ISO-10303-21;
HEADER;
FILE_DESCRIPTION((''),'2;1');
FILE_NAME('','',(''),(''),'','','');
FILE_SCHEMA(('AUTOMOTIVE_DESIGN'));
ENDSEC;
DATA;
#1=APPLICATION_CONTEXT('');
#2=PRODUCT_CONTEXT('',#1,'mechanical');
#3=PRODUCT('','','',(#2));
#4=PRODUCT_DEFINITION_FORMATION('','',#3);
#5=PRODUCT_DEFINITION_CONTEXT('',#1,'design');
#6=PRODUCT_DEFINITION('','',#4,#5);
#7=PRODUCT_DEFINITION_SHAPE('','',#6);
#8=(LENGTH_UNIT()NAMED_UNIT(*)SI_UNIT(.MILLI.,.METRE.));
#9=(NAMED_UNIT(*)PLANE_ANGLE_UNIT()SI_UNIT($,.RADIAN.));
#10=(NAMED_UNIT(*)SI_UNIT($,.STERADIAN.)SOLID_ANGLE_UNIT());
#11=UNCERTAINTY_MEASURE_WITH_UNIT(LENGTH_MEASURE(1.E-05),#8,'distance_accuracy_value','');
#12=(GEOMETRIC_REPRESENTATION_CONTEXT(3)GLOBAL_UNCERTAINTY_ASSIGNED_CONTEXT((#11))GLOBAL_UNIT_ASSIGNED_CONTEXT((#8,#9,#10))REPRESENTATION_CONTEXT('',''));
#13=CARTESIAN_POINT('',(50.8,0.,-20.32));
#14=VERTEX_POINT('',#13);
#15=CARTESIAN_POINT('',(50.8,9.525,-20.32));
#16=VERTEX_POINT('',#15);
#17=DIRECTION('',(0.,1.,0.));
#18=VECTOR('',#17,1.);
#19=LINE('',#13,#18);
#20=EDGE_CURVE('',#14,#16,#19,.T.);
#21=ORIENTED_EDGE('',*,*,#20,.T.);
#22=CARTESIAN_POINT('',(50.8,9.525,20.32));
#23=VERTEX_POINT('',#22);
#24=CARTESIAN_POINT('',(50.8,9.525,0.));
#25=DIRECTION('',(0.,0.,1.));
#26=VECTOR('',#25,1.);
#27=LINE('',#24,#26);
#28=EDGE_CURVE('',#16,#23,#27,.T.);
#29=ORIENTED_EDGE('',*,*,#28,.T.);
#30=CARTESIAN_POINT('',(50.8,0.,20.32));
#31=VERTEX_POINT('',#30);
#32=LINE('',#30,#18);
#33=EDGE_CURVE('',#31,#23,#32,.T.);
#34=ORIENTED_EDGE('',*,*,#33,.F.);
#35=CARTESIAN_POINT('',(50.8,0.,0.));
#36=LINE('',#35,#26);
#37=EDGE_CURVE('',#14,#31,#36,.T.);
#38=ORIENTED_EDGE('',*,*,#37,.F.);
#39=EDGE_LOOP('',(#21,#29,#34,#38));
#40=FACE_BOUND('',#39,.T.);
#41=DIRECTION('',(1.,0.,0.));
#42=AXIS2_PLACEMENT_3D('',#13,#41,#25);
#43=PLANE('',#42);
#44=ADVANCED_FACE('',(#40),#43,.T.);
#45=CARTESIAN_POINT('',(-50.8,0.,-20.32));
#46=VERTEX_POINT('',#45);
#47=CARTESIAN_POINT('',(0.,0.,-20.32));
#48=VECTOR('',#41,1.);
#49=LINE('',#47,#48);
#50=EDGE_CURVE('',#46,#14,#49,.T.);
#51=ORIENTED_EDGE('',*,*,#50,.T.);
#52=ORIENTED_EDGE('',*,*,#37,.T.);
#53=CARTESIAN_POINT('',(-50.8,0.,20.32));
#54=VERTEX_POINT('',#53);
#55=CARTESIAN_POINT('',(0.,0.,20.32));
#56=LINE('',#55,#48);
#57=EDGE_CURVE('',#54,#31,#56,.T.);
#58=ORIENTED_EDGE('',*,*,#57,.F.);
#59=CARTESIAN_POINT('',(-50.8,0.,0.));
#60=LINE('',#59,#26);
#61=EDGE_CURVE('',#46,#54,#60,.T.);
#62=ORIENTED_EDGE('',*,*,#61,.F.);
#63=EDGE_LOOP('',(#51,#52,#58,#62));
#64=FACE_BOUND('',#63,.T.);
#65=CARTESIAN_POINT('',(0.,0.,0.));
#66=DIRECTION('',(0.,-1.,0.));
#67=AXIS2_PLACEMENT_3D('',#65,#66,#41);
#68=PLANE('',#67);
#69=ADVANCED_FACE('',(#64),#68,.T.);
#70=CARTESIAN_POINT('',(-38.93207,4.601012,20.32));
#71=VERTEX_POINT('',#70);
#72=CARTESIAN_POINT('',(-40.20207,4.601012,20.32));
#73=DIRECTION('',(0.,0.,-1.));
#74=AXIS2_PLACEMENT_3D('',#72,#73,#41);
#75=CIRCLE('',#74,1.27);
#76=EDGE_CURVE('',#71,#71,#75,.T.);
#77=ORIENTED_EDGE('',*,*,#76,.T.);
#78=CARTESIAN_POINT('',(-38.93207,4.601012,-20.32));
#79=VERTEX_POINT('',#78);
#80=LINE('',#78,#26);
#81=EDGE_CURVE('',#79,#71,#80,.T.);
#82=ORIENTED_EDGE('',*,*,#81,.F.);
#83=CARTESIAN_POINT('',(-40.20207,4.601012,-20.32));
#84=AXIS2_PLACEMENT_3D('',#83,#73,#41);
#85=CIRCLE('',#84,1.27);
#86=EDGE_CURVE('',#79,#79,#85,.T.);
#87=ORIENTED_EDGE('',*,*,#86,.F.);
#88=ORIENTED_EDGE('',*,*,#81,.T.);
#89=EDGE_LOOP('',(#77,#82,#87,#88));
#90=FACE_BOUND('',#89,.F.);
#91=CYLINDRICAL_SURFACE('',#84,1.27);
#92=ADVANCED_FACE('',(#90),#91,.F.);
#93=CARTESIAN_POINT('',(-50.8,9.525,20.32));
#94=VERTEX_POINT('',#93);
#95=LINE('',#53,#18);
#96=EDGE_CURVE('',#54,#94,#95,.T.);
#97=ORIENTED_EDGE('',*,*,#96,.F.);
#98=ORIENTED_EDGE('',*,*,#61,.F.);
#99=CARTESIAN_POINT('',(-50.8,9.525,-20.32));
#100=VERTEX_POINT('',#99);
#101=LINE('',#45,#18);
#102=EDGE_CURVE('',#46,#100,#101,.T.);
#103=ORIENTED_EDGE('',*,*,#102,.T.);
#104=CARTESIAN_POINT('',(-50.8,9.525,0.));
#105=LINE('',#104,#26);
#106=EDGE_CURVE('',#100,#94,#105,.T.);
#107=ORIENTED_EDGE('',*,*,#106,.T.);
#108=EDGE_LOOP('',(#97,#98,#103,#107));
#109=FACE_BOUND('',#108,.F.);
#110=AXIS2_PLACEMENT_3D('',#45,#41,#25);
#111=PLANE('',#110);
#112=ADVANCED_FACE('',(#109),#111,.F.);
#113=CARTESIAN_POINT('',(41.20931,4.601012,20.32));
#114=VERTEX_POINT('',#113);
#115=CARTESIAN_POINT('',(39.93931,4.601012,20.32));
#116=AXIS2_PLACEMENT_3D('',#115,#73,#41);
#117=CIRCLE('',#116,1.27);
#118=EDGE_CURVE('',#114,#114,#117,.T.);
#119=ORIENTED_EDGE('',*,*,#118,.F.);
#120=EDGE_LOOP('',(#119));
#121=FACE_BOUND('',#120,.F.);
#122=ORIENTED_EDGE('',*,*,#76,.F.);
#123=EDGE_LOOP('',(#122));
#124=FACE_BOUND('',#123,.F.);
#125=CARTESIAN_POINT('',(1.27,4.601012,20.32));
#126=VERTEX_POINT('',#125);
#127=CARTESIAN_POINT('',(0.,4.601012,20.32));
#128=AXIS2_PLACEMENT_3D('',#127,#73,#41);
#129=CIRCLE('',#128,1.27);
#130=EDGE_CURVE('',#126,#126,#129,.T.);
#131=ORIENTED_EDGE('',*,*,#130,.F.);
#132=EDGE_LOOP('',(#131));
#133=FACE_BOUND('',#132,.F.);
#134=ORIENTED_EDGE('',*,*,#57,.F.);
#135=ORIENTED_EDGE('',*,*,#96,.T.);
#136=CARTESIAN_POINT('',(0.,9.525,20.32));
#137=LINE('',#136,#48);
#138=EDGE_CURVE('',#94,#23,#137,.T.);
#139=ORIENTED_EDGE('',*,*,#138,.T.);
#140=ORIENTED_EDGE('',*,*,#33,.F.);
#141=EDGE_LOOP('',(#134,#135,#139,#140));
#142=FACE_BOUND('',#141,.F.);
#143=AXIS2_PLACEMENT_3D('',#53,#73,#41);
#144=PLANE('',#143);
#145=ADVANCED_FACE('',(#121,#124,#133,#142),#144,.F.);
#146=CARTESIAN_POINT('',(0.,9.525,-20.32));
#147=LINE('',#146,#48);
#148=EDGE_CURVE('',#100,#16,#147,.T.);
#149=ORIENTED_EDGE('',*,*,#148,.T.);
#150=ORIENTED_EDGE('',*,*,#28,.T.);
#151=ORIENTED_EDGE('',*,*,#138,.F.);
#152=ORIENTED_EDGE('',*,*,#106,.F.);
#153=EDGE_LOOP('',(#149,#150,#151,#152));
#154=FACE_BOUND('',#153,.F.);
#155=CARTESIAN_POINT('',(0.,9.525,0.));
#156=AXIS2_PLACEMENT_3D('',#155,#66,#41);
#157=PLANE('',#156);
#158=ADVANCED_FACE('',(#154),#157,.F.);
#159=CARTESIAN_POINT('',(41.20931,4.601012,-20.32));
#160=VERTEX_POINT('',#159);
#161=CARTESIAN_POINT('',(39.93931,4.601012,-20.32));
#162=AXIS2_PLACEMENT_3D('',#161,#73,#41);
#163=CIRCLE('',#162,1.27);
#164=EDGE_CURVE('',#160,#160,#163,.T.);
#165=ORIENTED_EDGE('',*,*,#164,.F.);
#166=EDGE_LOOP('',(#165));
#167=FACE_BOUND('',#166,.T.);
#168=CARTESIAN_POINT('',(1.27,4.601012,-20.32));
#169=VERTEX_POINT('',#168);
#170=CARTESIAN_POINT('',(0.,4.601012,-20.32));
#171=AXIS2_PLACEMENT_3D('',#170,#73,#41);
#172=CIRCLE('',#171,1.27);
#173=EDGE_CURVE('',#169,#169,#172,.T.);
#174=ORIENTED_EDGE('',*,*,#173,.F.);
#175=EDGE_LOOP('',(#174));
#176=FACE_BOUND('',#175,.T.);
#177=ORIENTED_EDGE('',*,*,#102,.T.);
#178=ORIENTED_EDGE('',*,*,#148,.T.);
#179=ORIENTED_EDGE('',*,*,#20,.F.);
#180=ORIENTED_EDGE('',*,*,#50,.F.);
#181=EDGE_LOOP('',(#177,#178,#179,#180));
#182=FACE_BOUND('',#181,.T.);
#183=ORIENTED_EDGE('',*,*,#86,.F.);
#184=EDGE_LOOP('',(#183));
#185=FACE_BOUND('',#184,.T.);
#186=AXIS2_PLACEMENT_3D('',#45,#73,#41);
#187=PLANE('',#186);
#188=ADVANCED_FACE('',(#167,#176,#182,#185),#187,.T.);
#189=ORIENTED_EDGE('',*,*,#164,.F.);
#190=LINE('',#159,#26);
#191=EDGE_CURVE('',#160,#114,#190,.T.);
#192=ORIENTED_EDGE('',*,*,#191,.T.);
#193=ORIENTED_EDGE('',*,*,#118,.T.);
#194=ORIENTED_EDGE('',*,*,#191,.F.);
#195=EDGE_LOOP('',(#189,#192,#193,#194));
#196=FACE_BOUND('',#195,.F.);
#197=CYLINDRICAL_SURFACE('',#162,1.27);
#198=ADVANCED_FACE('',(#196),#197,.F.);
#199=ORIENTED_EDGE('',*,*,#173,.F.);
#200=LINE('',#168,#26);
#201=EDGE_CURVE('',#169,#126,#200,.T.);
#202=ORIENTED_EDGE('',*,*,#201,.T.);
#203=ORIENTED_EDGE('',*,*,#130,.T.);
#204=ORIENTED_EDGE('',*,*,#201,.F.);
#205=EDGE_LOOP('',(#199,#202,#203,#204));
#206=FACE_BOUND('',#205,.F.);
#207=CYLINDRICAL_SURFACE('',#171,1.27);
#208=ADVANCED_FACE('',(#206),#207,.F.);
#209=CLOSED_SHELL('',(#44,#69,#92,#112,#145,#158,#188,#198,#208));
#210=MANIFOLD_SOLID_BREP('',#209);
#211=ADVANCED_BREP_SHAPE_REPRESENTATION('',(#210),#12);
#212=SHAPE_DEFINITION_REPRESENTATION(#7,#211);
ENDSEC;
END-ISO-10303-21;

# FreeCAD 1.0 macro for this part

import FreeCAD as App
import Part
import Sketcher
Q = App.Units.Quantity

doc = App.newDocument("Part")
body = doc.addObject("PartDesign::Body", "Body")

# Sketch on XZ plane
sketch1 = body.newObject("Sketcher::SketchObject", "Sketch")
sketch1.AttachmentSupport = (doc.getObject("XZ_Plane"), [""])
sketch1.MapMode = "FlatFace"
sketch1.addGeometry([
    Part.LineSegment(App.Vector(-51, 20, 0), App.Vector(-51, -20, 0)),
    Part.LineSegment(App.Vector(-51, -20, 0), App.Vector(51, -20, 0)),
    Part.LineSegment(App.Vector(51, -20, 0), App.Vector(51, 20, 0)),
    Part.LineSegment(App.Vector(51, 20, 0), App.Vector(-51, 20, 0)),
], False)
sketch1.addConstraint([
    Sketcher.Constraint("Coincident", 0, 2, 1, 1),
    Sketcher.Constraint("Coincident", 1, 2, 2, 1),
    Sketcher.Constraint("Coincident", 2, 2, 3, 1),
    Sketcher.Constraint("Coincident", 3, 2, 0, 1),
    Sketcher.Constraint("Vertical", 0),
    Sketcher.Constraint("Horizontal", 1),
    Sketcher.Constraint("Vertical", 2),
    Sketcher.Constraint("Horizontal", 3),
    Sketcher.Constraint("Symmetric", 0, 2, 2, 2, -1, 1),
    Sketcher.Constraint("DistanceX", 1, 1, 1, 2, Q("4 in")),
    Sketcher.Constraint("DistanceY", 0, 2, 0, 1, Q("1.6 in")),
])
pad1 = body.newObject("PartDesign::Pad", "Pad")
pad1.Profile = sketch1
pad1.Length = Q("0.375 in")
pad1.Reversed = True

# Sketch on XY plane
sketch2 = body.newObject("Sketcher::SketchObject", "Sketch001")
sketch2.AttachmentSupport = (doc.getObject("XY_Plane"), [""])
sketch2.MapMode = "FlatFace"
sketch2.AttachmentOffset = App.Placement(App.Vector(0, 0, -0.8 * 25.4), App.Rotation())
sketch2.addGeometry([
    Part.Circle(App.Vector(-40.2, 4.6, 0), App.Vector(0, 0, 1), 1.3),
    Part.Circle(App.Vector(0, 4.6, 0), App.Vector(0, 0, 1), 1.3),
    Part.Circle(App.Vector(39.9, 4.6, 0), App.Vector(0, 0, 1), 1.3),
], False)
sketch2.addConstraint([
    Sketcher.Constraint("Equal", 0, 1),
    Sketcher.Constraint("Equal", 1, 2),
    Sketcher.Constraint("PointOnObject", 1, 3, -2),
    Sketcher.Constraint("Horizontal", 0, 3, 1, 3),
    Sketcher.Constraint("Horizontal", 1, 3, 2, 3),
    Sketcher.Constraint("Diameter", 0, Q("0.1 in")),
    Sketcher.Constraint("DistanceX", 0, 3, -1, 1, 40.20207),
    Sketcher.Constraint("DistanceX", -1, 1, 2, 3, 39.93931),
    Sketcher.Constraint("DistanceY", -1, 1, 0, 3, 4.601012),
])
pocket1 = body.newObject("PartDesign::Pocket", "Pocket")
pocket1.Profile = sketch2
pocket1.Type = "ThroughAll"
pocket1.Reversed = True

doc.recompute()
